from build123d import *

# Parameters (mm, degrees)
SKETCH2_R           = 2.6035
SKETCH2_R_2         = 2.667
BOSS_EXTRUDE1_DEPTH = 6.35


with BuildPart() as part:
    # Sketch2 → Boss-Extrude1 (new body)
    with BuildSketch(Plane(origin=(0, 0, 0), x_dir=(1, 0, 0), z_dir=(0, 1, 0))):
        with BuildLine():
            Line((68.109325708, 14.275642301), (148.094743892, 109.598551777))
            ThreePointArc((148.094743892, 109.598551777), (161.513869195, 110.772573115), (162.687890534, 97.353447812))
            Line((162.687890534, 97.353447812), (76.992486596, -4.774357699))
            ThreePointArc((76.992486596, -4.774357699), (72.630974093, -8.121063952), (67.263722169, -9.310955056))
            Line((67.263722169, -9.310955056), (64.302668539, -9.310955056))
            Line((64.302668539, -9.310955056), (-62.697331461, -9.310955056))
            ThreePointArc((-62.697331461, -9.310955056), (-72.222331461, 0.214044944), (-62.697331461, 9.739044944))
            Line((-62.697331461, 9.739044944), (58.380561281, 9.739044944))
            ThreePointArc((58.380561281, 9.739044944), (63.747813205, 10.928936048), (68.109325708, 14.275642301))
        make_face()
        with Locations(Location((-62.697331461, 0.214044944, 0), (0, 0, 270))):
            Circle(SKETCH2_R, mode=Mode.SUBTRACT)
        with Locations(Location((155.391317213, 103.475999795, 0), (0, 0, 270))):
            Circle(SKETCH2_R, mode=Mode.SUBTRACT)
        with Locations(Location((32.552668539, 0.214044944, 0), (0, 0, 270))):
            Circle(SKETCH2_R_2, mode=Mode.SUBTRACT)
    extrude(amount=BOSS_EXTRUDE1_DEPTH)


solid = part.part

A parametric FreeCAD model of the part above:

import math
import FreeCAD as App
import Part
import Sketcher

V = App.Vector
Q = App.Units.Quantity

doc = App.newDocument("Part")
params = doc.addObject("Spreadsheet::Sheet", "Params")
for row, (alias, value) in enumerate([
    ("sketch1_radius", "0.5 in"),
    ("sketch1_diameter", "0.21 in"),
    ("sketch1_diameter2", "0.205 in"),
    ("sketch1_radius2", "0.375 in"),
    ("pad1_length", "0.25 in"),
], start=1):
    params.set(f"A{row}", alias)
    params.set(f"B{row}", "=" + value)
    params.setAlias(f"B{row}", alias)

body = doc.addObject("PartDesign::Body", "Body")

# Sketch on XZ plane
sketch1 = doc.addObject("Sketcher::SketchObject", "Sketch")
body.addObject(sketch1)
sketch1.AttachmentSupport = (doc.XZ_Plane, [""])
sketch1.MapMode = "FlatFace"
sketch1.addGeometry([
    Part.LineSegment(V(148.1, -109.6, 0), V(68.1, -14.3, 0)),  # 0
    Part.ArcOfCircle(Part.Circle(V(58.4, -22.4, 0), V(0, 0, 1), 12.7), math.radians(40), math.radians(90)),  # 1
    Part.LineSegment(V(58.4, -9.7, 0), V(-62.7, -9.7, 0)),  # 2
    Part.ArcOfCircle(Part.Circle(V(-62.7, -0.2, 0), V(0, 0, 1), 9.5), math.radians(90), math.radians(270)),  # 3
    Part.LineSegment(V(-62.7, 9.3, 0), V(67.3, 9.3, 0)),  # 4
    Part.ArcOfCircle(Part.Circle(V(67.3, -3.4, 0), V(0, 0, 1), 12.7), math.radians(40), math.radians(90)),  # 5
    Part.LineSegment(V(77, 4.8, 0), V(162.7, -97.4, 0)),  # 6
    Part.ArcOfCircle(Part.Circle(V(155.4, -103.5, 0), V(0, 0, 1), 9.5), math.radians(-140), math.radians(40)),  # 7
    Part.Circle(V(32.6, -0.2, 0), V(0, 0, 1), 2.7),  # 8
    Part.Circle(V(-62.7, -0.2, 0), V(0, 0, 1), 2.6),  # 9
    Part.Circle(V(155.4, -103.5, 0), V(0, 0, 1), 2.6),  # 10
], False)
sketch1.addConstraint([
    Sketcher.Constraint("Tangent", 0, 2, 1, 1),
    Sketcher.Constraint("Tangent", 1, 2, 2, 1),
    Sketcher.Constraint("Tangent", 2, 2, 3, 2),
    Sketcher.Constraint("Tangent", 3, 1, 4, 1),
    Sketcher.Constraint("Tangent", 4, 2, 5, 2),
    Sketcher.Constraint("Tangent", 5, 1, 6, 1),
    Sketcher.Constraint("Tangent", 6, 2, 7, 2),
    Sketcher.Constraint("Tangent", 7, 1, 0, 1),
    Sketcher.Constraint("Horizontal", 2),
    Sketcher.Constraint("Horizontal", 4),
    Sketcher.Constraint("Coincident", 9, 3, 3, 3),
    Sketcher.Constraint("Coincident", 10, 3, 7, 3),
    Sketcher.Constraint("Equal", 1, 5),
    Sketcher.Constraint("Equal", 3, 7),
    Sketcher.Constraint("Equal", 9, 10),
    Sketcher.Constraint("Parallel", 0, 6),
    Sketcher.Constraint("Horizontal", 3, 3, 8, 3),
    Sketcher.Constraint("Radius", 1, Q("0.5 in")),
    Sketcher.Constraint("Diameter", 8, Q("0.21 in")),
    Sketcher.Constraint("Diameter", 9, Q("0.205 in")),
    Sketcher.Constraint("Angle", 0, Q("130 deg")),
    Sketcher.Constraint("Radius", 3, Q("0.375 in")),
    Sketcher.Constraint("DistanceX", 3, 3, 8, 3, Q("3.75 in")),
    Sketcher.Constraint("DistanceY", 7, 3, -1, 1, Q("103.476 mm")),
    Sketcher.Constraint("Distance", 0, Q("124.435221 mm")),
    Sketcher.Constraint("DistanceX", 2, 2, 2, 1, Q("121.077893 mm")),
    Sketcher.Constraint("DistanceX", -1, 1, 1, 3, Q("58.380561 mm")),
])
sketch1.setExpression("Constraints[17]", "Params.sketch1_radius")
sketch1.setExpression("Constraints[18]", "Params.sketch1_diameter")
sketch1.setExpression("Constraints[19]", "Params.sketch1_diameter2")
sketch1.setExpression("Constraints[21]", "Params.sketch1_radius2")
pad1 = doc.addObject("PartDesign::Pad", "Pad")
body.addObject(pad1)
pad1.Profile = sketch1
pad1.setExpression("Length", "Params.pad1_length")
pad1.Reversed = True

doc.recompute()
